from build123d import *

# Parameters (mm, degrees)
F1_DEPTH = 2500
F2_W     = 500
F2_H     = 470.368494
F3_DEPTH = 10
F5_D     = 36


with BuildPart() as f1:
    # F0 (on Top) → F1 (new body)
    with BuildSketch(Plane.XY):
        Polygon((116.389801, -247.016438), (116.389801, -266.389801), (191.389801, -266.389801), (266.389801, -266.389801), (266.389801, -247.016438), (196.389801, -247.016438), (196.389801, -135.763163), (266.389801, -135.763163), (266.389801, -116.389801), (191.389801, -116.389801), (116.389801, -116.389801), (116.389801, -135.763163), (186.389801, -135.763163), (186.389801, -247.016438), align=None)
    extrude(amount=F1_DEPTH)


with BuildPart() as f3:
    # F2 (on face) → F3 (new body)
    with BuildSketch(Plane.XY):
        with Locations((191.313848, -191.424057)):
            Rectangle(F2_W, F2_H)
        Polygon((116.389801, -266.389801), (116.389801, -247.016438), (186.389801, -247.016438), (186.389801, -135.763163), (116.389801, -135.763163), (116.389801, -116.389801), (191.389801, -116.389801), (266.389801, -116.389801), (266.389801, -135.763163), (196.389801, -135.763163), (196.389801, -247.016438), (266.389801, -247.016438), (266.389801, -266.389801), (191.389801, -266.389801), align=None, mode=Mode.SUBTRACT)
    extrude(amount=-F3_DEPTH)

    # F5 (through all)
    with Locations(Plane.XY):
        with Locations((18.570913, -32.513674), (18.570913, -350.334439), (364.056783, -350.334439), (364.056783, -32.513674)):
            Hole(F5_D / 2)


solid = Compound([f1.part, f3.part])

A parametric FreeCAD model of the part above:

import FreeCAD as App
import Part
import Sketcher

V = App.Vector

doc = App.newDocument("Part")
body = doc.addObject("PartDesign::Body", "Body")

# Sketch on XY plane
sketch1 = body.newObject("Sketcher::SketchObject", "Sketch")
sketch1.AttachmentSupport = (doc.getObject("XY_Plane"), [""])
sketch1.MapMode = "FlatFace"
sketch1.addGeometry([
    Part.LineSegment(V(116, -247, 0), V(116, -266, 0)),  # 0
    Part.LineSegment(V(116, -266, 0), V(266, -266, 0)),  # 1
    Part.LineSegment(V(266, -266, 0), V(266, -247, 0)),  # 2
    Part.LineSegment(V(266, -247, 0), V(196, -247, 0)),  # 3
    Part.LineSegment(V(196, -247, 0), V(196, -136, 0)),  # 4
    Part.LineSegment(V(196, -136, 0), V(266, -136, 0)),  # 5
    Part.LineSegment(V(266, -136, 0), V(266, -116, 0)),  # 6
    Part.LineSegment(V(266, -116, 0), V(116, -116, 0)),  # 7
    Part.LineSegment(V(116, -116, 0), V(116, -136, 0)),  # 8
    Part.LineSegment(V(116, -136, 0), V(186, -136, 0)),  # 9
    Part.LineSegment(V(186, -136, 0), V(186, -247, 0)),  # 10
    Part.LineSegment(V(186, -247, 0), V(116, -247, 0)),  # 11
], False)
sketch1.addConstraint([
    Sketcher.Constraint("Coincident", 0, 2, 1, 1),
    Sketcher.Constraint("Coincident", 1, 2, 2, 1),
    Sketcher.Constraint("Coincident", 2, 2, 3, 1),
    Sketcher.Constraint("Coincident", 3, 2, 4, 1),
    Sketcher.Constraint("Coincident", 4, 2, 5, 1),
    Sketcher.Constraint("Coincident", 5, 2, 6, 1),
    Sketcher.Constraint("Coincident", 6, 2, 7, 1),
    Sketcher.Constraint("Coincident", 7, 2, 8, 1),
    Sketcher.Constraint("Coincident", 8, 2, 9, 1),
    Sketcher.Constraint("Coincident", 9, 2, 10, 1),
    Sketcher.Constraint("Coincident", 10, 2, 11, 1),
    Sketcher.Constraint("Coincident", 11, 2, 0, 1),
    Sketcher.Constraint("Vertical", 0),
    Sketcher.Constraint("Horizontal", 1),
    Sketcher.Constraint("Vertical", 2),
    Sketcher.Constraint("Horizontal", 3),
    Sketcher.Constraint("Vertical", 4),
    Sketcher.Constraint("Horizontal", 5),
    Sketcher.Constraint("Vertical", 6),
    Sketcher.Constraint("Horizontal", 7),
    Sketcher.Constraint("Vertical", 8),
    Sketcher.Constraint("Horizontal", 9),
    Sketcher.Constraint("Vertical", 10),
    Sketcher.Constraint("Horizontal", 11),
    Sketcher.Constraint("Horizontal", 5, 2, 8, 2),
    Sketcher.Constraint("Horizontal", 3, 2, 10, 2),
    Sketcher.Constraint("Vertical", 2, 2, 5, 2),
    Sketcher.Constraint("Vertical", 0, 2, 7, 2),
    Sketcher.Constraint("Equal", 5, 9),
    Sketcher.Constraint("Equal", 2, 6),
    Sketcher.Constraint("DistanceX", 1, 1, 1, 2, 150.0),
    Sketcher.Constraint("DistanceX", 3, 2, 3, 1, 70.0),
    Sketcher.Constraint("DistanceY", 1, 2, 6, 2, 150.0),
    Sketcher.Constraint("DistanceY", 6, 1, 6, 2, 19.373362),
    Sketcher.Constraint("DistanceX", -1, 1, 0, 2, 116.389801),
    Sketcher.Constraint("DistanceY", 0, 2, -1, 1, 266.389801),
])
pad1 = body.newObject("PartDesign::Pad", "Pad")
pad1.Profile = sketch1
pad1.Length = 2500
body2 = doc.addObject("PartDesign::Body", "Body001")

# Sketch on XY plane
sketch2 = body2.newObject("Sketcher::SketchObject", "Sketch001")
sketch2.AttachmentSupport = (doc.getObject("XY_Plane001"), [""])
sketch2.MapMode = "FlatFace"
sketch2.addGeometry([
    Part.LineSegment(V(-59, 44, 0), V(-59, -427, 0)),  # 0
    Part.LineSegment(V(-59, -427, 0), V(441, -427, 0)),  # 1
    Part.LineSegment(V(441, -427, 0), V(441, 44, 0)),  # 2
    Part.LineSegment(V(441, 44, 0), V(-59, 44, 0)),  # 3
    Part.LineSegment(V(266, -266, 0), V(116, -266, 0)),  # 4
    Part.LineSegment(V(116, -266, 0), V(116, -247, 0)),  # 5
    Part.LineSegment(V(116, -247, 0), V(186, -247, 0)),  # 6
    Part.LineSegment(V(186, -247, 0), V(186, -136, 0)),  # 7
    Part.LineSegment(V(186, -136, 0), V(116, -136, 0)),  # 8
    Part.LineSegment(V(116, -136, 0), V(116, -116, 0)),  # 9
    Part.LineSegment(V(116, -116, 0), V(266, -116, 0)),  # 10
    Part.LineSegment(V(266, -116, 0), V(266, -136, 0)),  # 11
    Part.LineSegment(V(266, -136, 0), V(196, -136, 0)),  # 12
    Part.LineSegment(V(196, -136, 0), V(196, -247, 0)),  # 13
    Part.LineSegment(V(196, -247, 0), V(266, -247, 0)),  # 14
    Part.LineSegment(V(266, -247, 0), V(266, -266, 0)),  # 15
], False)
sketch2.addConstraint([
    Sketcher.Constraint("Coincident", 0, 2, 1, 1),
    Sketcher.Constraint("Coincident", 1, 2, 2, 1),
    Sketcher.Constraint("Coincident", 2, 2, 3, 1),
    Sketcher.Constraint("Coincident", 3, 2, 0, 1),
    Sketcher.Constraint("Coincident", 4, 2, 5, 1),
    Sketcher.Constraint("Coincident", 5, 2, 6, 1),
    Sketcher.Constraint("Coincident", 6, 2, 7, 1),
    Sketcher.Constraint("Coincident", 7, 2, 8, 1),
    Sketcher.Constraint("Coincident", 8, 2, 9, 1),
    Sketcher.Constraint("Coincident", 9, 2, 10, 1),
    Sketcher.Constraint("Coincident", 10, 2, 11, 1),
    Sketcher.Constraint("Coincident", 11, 2, 12, 1),
    Sketcher.Constraint("Coincident", 12, 2, 13, 1),
    Sketcher.Constraint("Coincident", 13, 2, 14, 1),
    Sketcher.Constraint("Coincident", 14, 2, 15, 1),
    Sketcher.Constraint("Coincident", 15, 2, 4, 1),
    Sketcher.Constraint("Vertical", 0),
    Sketcher.Constraint("Horizontal", 1),
    Sketcher.Constraint("Vertical", 2),
    Sketcher.Constraint("Horizontal", 3),
    Sketcher.Constraint("Horizontal", 4),
    Sketcher.Constraint("Vertical", 5),
    Sketcher.Constraint("Horizontal", 6),
    Sketcher.Constraint("Vertical", 7),
    Sketcher.Constraint("Horizontal", 8),
    Sketcher.Constraint("Vertical", 9),
    Sketcher.Constraint("Horizontal", 10),
    Sketcher.Constraint("Vertical", 11),
    Sketcher.Constraint("Horizontal", 12),
    Sketcher.Constraint("Vertical", 13),
    Sketcher.Constraint("Horizontal", 14),
    Sketcher.Constraint("Vertical", 15),
    Sketcher.Constraint("Horizontal", 8, 2, 11, 2),
    Sketcher.Constraint("Horizontal", 6, 2, 13, 2),
    Sketcher.Constraint("Vertical", 5, 2, 8, 2),
    Sketcher.Constraint("Vertical", 11, 2, 14, 2),
    Sketcher.Constraint("Equal", 8, 12),
    Sketcher.Constraint("Equal", 5, 9),
    Sketcher.Constraint("DistanceX", 1, 1, 1, 2, 500.0),
    Sketcher.Constraint("DistanceX", 4, 2, 4, 1, 150.0),
    Sketcher.Constraint("DistanceX", 6, 1, 6, 2, 70.0),
    Sketcher.Constraint("DistanceY", 4, 2, 9, 2, 150.0),
    Sketcher.Constraint("DistanceY", 9, 1, 9, 2, 19.373362),
    Sketcher.Constraint("DistanceX", -1, 1, 4, 2, 116.389801),
    Sketcher.Constraint("DistanceY", 4, 2, -1, 1, 266.389801),
    Sketcher.Constraint("DistanceY", 0, 2, 0, 1, 470.368494),
    Sketcher.Constraint("DistanceX", -1, 1, 1, 2, 441.313848),
    Sketcher.Constraint("DistanceY", -1, 1, 2, 2, 43.76019),
])
pad2 = body2.newObject("PartDesign::Pad", "Pad001")
pad2.Profile = sketch2
pad2.Length = 10
pad2.Reversed = True

# Sketch on XY plane
sketch3 = body2.newObject("Sketcher::SketchObject", "Sketch002")
sketch3.AttachmentSupport = (doc.getObject("XY_Plane001"), [""])
sketch3.MapMode = "FlatFace"
sketch3.addGeometry([
    Part.Circle(V(19, -33, 0), V(0, 0, 1), 18),
    Part.Circle(V(19, -350, 0), V(0, 0, 1), 18),
    Part.Circle(V(364, -350, 0), V(0, 0, 1), 18),
    Part.Circle(V(364, -33, 0), V(0, 0, 1), 18),
], False)
sketch3.addConstraint([
    Sketcher.Constraint("Equal", 0, 1),
    Sketcher.Constraint("Equal", 1, 2),
    Sketcher.Constraint("Equal", 2, 3),
    Sketcher.Constraint("Horizontal", 1, 3, 2, 3),
    Sketcher.Constraint("Horizontal", 0, 3, 3, 3),
    Sketcher.Constraint("Vertical", 0, 3, 1, 3),
    Sketcher.Constraint("Vertical", 2, 3, 3, 3),
    Sketcher.Constraint("Diameter", 0, 36.0),
    Sketcher.Constraint("DistanceY", 1, 3, -1, 1, 350.334439),
    Sketcher.Constraint("DistanceX", 1, 3, 2, 3, 345.48587),
    Sketcher.Constraint("DistanceX", -1, 1, 0, 3, 18.570913),
    Sketcher.Constraint("DistanceY", 0, 3, -1, 1, 32.513674),
])
doc.recompute()
hole = body2.newObject("PartDesign::Hole", "Hole")
hole.Profile = sketch3
hole.ThreadType = "None"
hole.Diameter = 36
hole.DepthType = "ThroughAll"

doc.recompute()
